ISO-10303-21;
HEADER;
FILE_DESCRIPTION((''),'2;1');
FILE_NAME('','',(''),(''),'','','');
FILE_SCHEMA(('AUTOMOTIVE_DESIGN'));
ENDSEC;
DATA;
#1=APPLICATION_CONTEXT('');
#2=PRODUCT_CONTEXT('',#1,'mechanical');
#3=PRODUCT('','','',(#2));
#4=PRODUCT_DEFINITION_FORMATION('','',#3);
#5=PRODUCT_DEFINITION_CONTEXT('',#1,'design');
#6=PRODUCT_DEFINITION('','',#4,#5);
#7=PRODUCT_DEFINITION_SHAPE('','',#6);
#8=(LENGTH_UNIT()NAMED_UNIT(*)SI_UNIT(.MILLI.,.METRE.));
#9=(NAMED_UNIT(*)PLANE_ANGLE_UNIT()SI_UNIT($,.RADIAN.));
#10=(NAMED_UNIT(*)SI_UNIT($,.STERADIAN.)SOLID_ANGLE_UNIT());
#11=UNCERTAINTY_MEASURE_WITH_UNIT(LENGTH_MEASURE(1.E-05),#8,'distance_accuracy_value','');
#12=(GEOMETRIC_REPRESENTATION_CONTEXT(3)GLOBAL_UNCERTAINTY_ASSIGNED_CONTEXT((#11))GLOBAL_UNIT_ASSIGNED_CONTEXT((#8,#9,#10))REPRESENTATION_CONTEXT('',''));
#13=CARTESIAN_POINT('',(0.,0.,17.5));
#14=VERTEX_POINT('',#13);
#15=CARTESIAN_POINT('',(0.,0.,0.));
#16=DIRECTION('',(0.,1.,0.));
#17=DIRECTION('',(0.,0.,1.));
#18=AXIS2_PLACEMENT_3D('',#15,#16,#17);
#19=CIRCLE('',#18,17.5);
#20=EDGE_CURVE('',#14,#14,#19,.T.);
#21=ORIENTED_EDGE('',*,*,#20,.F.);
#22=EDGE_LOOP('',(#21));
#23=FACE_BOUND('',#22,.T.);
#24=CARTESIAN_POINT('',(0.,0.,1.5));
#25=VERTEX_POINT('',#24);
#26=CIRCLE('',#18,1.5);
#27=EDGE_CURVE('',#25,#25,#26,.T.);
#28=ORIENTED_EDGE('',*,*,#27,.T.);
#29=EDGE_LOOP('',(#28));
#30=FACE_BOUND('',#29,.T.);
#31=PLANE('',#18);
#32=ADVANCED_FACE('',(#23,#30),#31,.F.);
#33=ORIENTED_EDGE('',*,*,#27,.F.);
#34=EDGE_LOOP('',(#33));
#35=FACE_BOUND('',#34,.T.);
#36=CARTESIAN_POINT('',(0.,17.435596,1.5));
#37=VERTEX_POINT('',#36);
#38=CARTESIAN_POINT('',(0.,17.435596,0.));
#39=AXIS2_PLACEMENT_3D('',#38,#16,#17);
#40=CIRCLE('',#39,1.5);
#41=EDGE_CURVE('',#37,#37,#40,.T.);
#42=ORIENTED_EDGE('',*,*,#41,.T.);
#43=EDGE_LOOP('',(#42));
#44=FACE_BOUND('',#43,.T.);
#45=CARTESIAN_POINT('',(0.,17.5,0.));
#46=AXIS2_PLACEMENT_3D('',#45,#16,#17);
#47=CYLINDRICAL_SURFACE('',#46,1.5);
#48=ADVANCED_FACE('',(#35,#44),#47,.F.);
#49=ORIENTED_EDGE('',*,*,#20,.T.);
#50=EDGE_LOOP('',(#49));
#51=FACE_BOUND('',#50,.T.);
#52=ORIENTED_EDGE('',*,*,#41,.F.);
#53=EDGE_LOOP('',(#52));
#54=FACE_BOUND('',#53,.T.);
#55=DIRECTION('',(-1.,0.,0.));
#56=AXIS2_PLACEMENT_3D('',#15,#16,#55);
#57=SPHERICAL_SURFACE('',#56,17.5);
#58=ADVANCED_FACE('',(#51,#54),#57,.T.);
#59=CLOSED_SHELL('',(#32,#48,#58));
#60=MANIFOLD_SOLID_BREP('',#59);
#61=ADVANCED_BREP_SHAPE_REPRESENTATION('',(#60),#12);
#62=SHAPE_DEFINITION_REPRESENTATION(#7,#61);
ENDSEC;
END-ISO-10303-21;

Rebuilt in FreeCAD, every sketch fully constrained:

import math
import FreeCAD as App
import Part
import Sketcher

V = App.Vector

doc = App.newDocument("Part")
body = doc.addObject("PartDesign::Body", "Body")

# Sketch on XY plane
sketch1 = body.newObject("Sketcher::SketchObject", "Sketch")
sketch1.AttachmentSupport = (doc.getObject("XY_Plane"), [""])
sketch1.MapMode = "FlatFace"
sketch1.addGeometry(Part.LineSegment(V(-18, 0, 0), V(-2, 0, 0)), False)
sketch1.addGeometry(Part.LineSegment(V(-2, 0, 0), V(-2, 17, 0)), False)
sketch1.addGeometry(Part.ArcOfCircle(Part.Circle(V(0, 0, 0), V(0, 0, 1), 18), math.radians(95), math.radians(180)), False)
sketch1.addConstraint(Sketcher.Constraint("Coincident", 0, 2, 1, 1))
sketch1.addConstraint(Sketcher.Constraint("Coincident", 1, 2, 2, 1))
sketch1.addConstraint(Sketcher.Constraint("Coincident", 2, 2, 0, 1))
sketch1.addConstraint(Sketcher.Constraint("Horizontal", 0))
sketch1.addConstraint(Sketcher.Constraint("Vertical", 1))
sketch1.addConstraint(Sketcher.Constraint("Coincident", 2, 3, -1, 1))
sketch1.addConstraint(Sketcher.Constraint("PointOnObject", 0, 2, -1))
sketch1.addConstraint(Sketcher.Constraint("Radius", 2, 17.5))
sketch1.addConstraint(Sketcher.Constraint("DistanceX", 0, 1, 0, 2, 16.0))
revolution = body.newObject("PartDesign::Revolution", "Revolution")
revolution.Profile = sketch1
revolution.ReferenceAxis = (sketch1, ["V_Axis"])
revolution.Angle = 360

doc.recompute()
